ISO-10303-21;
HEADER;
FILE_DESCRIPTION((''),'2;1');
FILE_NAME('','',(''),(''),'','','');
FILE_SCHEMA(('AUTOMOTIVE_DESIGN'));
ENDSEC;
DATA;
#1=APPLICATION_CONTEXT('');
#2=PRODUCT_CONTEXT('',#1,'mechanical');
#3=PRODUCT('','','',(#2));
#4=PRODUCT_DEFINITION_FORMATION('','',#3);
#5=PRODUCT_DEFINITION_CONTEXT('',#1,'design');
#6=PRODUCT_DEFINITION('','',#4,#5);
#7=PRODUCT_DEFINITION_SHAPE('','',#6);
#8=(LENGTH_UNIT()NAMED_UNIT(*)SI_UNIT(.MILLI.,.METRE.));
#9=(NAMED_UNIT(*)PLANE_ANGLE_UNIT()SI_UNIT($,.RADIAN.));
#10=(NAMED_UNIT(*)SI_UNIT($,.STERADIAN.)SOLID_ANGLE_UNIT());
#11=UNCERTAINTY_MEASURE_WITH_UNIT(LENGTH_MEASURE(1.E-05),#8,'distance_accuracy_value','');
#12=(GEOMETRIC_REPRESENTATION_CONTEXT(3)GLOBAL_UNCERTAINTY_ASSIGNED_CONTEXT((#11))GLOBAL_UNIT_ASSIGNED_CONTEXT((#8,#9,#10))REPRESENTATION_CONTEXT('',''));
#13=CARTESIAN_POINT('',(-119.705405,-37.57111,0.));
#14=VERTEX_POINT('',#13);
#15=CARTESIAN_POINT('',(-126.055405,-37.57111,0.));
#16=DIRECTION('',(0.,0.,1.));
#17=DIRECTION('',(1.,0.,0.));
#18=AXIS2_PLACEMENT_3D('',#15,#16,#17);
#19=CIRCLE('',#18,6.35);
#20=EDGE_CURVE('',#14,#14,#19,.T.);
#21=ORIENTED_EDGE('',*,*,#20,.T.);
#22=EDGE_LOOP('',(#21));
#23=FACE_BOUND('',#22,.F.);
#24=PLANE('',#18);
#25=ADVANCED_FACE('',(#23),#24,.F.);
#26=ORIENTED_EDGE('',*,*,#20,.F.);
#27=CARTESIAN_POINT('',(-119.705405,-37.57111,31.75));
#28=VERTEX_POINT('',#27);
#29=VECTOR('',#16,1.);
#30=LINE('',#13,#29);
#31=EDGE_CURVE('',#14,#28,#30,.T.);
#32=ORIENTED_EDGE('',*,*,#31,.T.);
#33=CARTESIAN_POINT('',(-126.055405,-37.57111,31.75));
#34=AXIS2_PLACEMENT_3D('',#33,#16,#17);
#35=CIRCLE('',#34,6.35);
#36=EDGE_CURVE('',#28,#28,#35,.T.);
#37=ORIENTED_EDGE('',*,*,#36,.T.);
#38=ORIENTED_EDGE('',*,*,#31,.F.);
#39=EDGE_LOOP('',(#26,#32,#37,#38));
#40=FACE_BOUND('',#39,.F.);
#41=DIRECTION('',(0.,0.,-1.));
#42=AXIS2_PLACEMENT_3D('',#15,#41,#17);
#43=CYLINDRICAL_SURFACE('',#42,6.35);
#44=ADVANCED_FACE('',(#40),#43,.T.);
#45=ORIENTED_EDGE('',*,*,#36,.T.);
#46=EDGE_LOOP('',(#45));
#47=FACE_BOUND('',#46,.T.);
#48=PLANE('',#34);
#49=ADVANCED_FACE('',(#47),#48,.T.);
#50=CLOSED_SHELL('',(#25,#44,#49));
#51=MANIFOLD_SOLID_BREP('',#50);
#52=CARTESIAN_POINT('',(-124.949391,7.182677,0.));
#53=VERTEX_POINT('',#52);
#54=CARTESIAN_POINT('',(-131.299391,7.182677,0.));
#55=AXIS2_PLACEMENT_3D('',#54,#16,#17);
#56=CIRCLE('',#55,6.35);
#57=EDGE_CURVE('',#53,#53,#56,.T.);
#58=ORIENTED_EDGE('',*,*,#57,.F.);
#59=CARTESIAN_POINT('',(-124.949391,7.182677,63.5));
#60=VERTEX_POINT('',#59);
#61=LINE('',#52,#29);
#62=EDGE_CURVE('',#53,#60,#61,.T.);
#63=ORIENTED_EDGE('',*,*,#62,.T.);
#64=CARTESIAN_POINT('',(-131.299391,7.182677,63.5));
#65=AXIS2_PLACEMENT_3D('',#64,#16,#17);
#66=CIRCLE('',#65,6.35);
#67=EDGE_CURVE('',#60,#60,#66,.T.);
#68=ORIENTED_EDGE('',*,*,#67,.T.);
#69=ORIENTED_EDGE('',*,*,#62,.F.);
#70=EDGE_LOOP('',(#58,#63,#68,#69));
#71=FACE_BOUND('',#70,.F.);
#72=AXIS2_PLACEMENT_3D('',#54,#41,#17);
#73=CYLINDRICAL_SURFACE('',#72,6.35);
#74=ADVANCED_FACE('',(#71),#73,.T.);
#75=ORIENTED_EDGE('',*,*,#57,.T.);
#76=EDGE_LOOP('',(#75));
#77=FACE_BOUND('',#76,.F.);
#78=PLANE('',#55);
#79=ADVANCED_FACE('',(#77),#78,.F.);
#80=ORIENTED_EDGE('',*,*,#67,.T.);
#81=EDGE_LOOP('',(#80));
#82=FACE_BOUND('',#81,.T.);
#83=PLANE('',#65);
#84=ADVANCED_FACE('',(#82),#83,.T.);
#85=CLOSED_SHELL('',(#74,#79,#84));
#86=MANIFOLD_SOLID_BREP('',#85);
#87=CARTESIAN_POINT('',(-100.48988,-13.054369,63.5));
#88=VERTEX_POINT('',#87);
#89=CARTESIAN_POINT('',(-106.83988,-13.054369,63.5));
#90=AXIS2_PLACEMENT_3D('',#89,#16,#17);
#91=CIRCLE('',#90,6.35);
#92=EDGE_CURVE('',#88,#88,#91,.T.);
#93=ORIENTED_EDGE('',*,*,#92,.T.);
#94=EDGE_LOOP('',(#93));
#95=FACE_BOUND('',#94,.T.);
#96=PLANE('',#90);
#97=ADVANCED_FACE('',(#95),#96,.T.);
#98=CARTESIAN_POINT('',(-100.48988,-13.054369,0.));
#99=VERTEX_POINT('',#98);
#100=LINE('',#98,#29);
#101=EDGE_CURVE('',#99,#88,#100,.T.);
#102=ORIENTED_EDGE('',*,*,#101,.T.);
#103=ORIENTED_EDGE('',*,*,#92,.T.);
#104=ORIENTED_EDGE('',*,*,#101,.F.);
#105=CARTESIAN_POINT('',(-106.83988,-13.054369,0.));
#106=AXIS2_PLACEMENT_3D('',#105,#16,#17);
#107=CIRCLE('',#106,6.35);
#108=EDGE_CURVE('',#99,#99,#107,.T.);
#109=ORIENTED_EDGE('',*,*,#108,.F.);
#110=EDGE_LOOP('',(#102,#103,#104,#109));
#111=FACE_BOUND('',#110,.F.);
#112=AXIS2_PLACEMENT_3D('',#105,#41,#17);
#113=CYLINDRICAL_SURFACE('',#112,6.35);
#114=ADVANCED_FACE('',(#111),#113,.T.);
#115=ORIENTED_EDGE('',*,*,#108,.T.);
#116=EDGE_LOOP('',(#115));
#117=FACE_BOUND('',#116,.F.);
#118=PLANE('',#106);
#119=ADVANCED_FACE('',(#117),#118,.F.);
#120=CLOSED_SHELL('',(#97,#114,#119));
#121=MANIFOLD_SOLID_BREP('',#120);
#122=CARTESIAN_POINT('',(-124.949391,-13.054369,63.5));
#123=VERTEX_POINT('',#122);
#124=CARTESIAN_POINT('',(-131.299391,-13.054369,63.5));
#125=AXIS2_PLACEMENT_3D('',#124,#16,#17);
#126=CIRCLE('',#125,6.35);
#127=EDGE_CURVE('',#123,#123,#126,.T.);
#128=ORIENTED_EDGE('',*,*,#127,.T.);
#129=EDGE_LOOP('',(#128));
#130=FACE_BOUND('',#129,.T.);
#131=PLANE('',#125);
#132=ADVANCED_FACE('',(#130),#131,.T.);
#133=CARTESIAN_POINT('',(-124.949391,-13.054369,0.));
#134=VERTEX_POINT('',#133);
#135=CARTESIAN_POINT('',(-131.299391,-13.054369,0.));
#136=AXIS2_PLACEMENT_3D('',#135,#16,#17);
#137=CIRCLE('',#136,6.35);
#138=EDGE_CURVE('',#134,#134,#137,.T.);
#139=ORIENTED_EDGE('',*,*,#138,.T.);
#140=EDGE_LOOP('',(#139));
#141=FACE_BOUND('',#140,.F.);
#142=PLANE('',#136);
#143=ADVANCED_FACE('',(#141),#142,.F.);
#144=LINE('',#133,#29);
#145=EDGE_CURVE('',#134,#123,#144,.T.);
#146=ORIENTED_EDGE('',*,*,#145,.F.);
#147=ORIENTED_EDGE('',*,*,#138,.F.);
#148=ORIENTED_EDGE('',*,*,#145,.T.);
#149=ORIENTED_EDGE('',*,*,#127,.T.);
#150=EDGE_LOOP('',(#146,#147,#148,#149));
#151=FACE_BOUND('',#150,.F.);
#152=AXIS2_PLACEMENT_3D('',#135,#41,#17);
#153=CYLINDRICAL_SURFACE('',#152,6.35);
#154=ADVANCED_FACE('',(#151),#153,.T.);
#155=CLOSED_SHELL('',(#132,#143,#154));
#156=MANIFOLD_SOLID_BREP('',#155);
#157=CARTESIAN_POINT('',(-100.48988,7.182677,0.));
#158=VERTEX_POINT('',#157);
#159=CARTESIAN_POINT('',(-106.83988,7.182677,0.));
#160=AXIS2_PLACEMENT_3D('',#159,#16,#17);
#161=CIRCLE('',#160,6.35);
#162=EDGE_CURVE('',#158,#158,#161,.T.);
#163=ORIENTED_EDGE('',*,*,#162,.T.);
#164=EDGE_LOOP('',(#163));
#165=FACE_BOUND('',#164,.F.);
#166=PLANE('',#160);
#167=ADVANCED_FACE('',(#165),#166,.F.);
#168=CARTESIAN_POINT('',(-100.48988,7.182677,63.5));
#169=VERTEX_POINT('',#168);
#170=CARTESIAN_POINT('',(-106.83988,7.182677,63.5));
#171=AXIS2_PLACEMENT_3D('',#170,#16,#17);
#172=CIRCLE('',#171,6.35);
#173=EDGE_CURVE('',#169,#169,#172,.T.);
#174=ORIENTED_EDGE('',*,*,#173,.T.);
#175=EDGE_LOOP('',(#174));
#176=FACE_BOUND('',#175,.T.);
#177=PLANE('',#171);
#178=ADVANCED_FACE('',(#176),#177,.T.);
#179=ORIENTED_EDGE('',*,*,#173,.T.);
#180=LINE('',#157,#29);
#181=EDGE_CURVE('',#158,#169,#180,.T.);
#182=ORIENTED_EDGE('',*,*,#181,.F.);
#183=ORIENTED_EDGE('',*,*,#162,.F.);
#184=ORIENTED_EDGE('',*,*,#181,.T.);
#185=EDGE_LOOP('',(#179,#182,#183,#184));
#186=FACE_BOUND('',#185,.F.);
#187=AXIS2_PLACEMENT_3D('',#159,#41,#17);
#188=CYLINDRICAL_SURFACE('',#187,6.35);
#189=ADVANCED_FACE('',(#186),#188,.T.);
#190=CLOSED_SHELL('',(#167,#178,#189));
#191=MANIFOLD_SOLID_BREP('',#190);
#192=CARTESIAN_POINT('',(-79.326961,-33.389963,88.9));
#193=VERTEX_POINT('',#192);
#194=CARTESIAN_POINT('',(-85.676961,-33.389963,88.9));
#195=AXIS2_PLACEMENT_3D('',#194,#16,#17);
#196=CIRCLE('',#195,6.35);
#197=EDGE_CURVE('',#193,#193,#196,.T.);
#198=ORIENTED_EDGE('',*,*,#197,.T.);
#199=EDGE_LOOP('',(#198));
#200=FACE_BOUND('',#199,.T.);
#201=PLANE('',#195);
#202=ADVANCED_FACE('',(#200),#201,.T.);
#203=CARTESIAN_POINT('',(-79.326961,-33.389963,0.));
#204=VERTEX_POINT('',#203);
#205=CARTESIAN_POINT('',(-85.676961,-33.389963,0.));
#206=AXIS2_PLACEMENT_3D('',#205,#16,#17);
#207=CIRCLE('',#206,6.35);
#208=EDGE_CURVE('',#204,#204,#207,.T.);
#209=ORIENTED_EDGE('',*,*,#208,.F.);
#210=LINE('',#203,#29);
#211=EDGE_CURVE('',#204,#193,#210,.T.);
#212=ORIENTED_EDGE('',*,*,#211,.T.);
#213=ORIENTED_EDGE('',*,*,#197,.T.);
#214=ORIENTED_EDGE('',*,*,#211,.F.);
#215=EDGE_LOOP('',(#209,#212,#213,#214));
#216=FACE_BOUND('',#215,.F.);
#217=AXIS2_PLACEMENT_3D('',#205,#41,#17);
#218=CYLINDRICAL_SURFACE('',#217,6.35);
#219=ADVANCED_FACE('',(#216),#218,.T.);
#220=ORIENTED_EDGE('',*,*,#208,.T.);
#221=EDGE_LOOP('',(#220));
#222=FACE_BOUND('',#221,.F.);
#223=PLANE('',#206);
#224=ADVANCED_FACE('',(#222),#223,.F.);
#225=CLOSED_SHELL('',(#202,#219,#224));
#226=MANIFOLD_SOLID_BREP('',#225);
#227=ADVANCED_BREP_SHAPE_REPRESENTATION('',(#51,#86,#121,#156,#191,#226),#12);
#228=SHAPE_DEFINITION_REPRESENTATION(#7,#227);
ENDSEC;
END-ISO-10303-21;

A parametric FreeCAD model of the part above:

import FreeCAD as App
import Part
import Sketcher
from FreeCAD import Vector
Q = App.Units.Quantity

doc = App.newDocument("Part")
body = doc.addObject("PartDesign::Body", "Body")

# Sketch on XY plane
sketch1 = body.newObject("Sketcher::SketchObject", "Sketch")
sketch1.AttachmentSupport = (doc.getObject("XY_Plane"), [""])
sketch1.MapMode = "FlatFace"
sketch1.addGeometry(Part.Circle(Vector(-131, 7, 0), Vector(0, 0, 1), 6), False)
sketch1.addConstraint([
    Sketcher.Constraint("Diameter", 0, Q("0.5 in")),
    Sketcher.Constraint("DistanceX", 0, 3, -1, 1, 131.299391),
    Sketcher.Constraint("DistanceY", -1, 1, 0, 3, 7.182677),
])
pad1 = body.newObject("PartDesign::Pad", "Pad")
pad1.Profile = sketch1
pad1.Length = Q("2.5 in")
body2 = doc.addObject("PartDesign::Body", "Body001")
body2.AllowCompound = True

# Sketch on XY plane
sketch2 = body2.newObject("Sketcher::SketchObject", "Sketch001")
sketch2.AttachmentSupport = (doc.getObject("XY_Plane001"), [""])
sketch2.MapMode = "FlatFace"
sketch2.addGeometry([
    Part.Circle(Vector(-107, 7, 0), Vector(0, 0, 1), 6),
    Part.Circle(Vector(-131, -13, 0), Vector(0, 0, 1), 6),
    Part.Circle(Vector(-107, -13, 0), Vector(0, 0, 1), 6),
], False)
sketch2.addConstraint([
    Sketcher.Constraint("Equal", 0, 1),
    Sketcher.Constraint("Equal", 1, 2),
    Sketcher.Constraint("Horizontal", 1, 3, 2, 3),
    Sketcher.Constraint("Vertical", 0, 3, 2, 3),
    Sketcher.Constraint("Diameter", 0, Q("0.5 in")),
    Sketcher.Constraint("DistanceX", 0, 3, -1, 1, 106.83988),
    Sketcher.Constraint("DistanceX", 1, 3, -1, 1, 131.299391),
    Sketcher.Constraint("DistanceY", 1, 3, -1, 1, 13.054369),
    Sketcher.Constraint("DistanceY", -1, 1, 0, 3, 7.182677),
])
pad2 = body2.newObject("PartDesign::Pad", "Pad001")
pad2.Profile = sketch2
pad2.Length = Q("2.5 in")
body3 = doc.addObject("PartDesign::Body", "Body002")

# Sketch on XY plane
sketch3 = body3.newObject("Sketcher::SketchObject", "Sketch002")
sketch3.AttachmentSupport = (doc.getObject("XY_Plane002"), [""])
sketch3.MapMode = "FlatFace"
sketch3.addGeometry(Part.Circle(Vector(-126, -38, 0), Vector(0, 0, 1), 6), False)
sketch3.addConstraint([
    Sketcher.Constraint("Diameter", 0, Q("0.5 in")),
    Sketcher.Constraint("DistanceY", 0, 3, -1, 1, 37.57111),
    Sketcher.Constraint("DistanceX", 0, 3, -1, 1, 126.055405),
])
pad3 = body3.newObject("PartDesign::Pad", "Pad002")
pad3.Profile = sketch3
pad3.Length = Q("1.25 in")
body4 = doc.addObject("PartDesign::Body", "Body003")

# Sketch on XY plane
sketch4 = body4.newObject("Sketcher::SketchObject", "Sketch003")
sketch4.AttachmentSupport = (doc.getObject("XY_Plane003"), [""])
sketch4.MapMode = "FlatFace"
sketch4.addGeometry(Part.Circle(Vector(-86, -33, 0), Vector(0, 0, 1), 6), False)
sketch4.addConstraint([
    Sketcher.Constraint("Diameter", 0, Q("0.5 in")),
    Sketcher.Constraint("DistanceX", 0, 3, -1, 1, 85.676961),
    Sketcher.Constraint("DistanceY", 0, 3, -1, 1, 33.389963),
])
pad4 = body4.newObject("PartDesign::Pad", "Pad003")
pad4.Profile = sketch4
pad4.Length = Q("3.5 in")

doc.recompute()
